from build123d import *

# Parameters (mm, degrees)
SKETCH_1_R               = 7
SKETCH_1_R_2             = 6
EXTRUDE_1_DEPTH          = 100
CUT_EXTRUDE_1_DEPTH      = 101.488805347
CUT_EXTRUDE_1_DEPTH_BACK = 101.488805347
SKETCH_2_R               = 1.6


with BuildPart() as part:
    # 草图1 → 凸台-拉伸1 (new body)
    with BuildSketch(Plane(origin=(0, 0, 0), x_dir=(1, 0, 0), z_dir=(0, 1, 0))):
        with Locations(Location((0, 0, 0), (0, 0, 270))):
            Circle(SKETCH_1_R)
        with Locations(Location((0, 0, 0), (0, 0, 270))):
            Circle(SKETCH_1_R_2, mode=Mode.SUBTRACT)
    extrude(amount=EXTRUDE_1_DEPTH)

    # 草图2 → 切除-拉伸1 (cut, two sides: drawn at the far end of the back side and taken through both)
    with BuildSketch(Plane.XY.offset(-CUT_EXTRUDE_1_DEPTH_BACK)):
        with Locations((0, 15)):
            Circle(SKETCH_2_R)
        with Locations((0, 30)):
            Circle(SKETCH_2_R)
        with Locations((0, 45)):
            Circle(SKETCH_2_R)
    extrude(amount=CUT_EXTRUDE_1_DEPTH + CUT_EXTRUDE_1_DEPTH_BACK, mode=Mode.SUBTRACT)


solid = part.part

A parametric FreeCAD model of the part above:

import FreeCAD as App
import Part
import Sketcher
Q = App.Units.Quantity

doc = App.newDocument("Part")
body = doc.addObject("PartDesign::Body", "Body")

# Sketch on XZ plane
sketch1 = body.newObject("Sketcher::SketchObject", "Sketch")
sketch1.AttachmentSupport = (doc.getObject("XZ_Plane"), [""])
sketch1.MapMode = "FlatFace"
sketch1.addGeometry(Part.Circle(App.Vector(0, 0, 0), App.Vector(0, 0, 1), 7), False)
sketch1.addGeometry(Part.Circle(App.Vector(0, 0, 0), App.Vector(0, 0, 1), 6), False)
sketch1.addConstraint(Sketcher.Constraint("Coincident", 0, 3, -1, 1))
sketch1.addConstraint(Sketcher.Constraint("Coincident", 1, 3, -1, 1))
sketch1.addConstraint(Sketcher.Constraint("Diameter", 0, Q("14 mm")))
sketch1.addConstraint(Sketcher.Constraint("Diameter", 1, Q("12 mm")))
pad1 = body.newObject("PartDesign::Pad", "Pad")
pad1.Profile = sketch1
pad1.Length = 100
pad1.Reversed = True

# Sketch on XY plane
sketch2 = body.newObject("Sketcher::SketchObject", "Sketch001")
sketch2.AttachmentSupport = (doc.getObject("XY_Plane"), [""])
sketch2.MapMode = "FlatFace"
sketch2.addGeometry(Part.Circle(App.Vector(0, 15, 0), App.Vector(0, 0, 1), 1.6), False)
sketch2.addGeometry(Part.Circle(App.Vector(0, 30, 0), App.Vector(0, 0, 1), 1.6), False)
sketch2.addGeometry(Part.Circle(App.Vector(0, 45, 0), App.Vector(0, 0, 1), 1.6), False)
sketch2.addConstraint(Sketcher.Constraint("Equal", 0, 1))
sketch2.addConstraint(Sketcher.Constraint("Equal", 1, 2))
sketch2.addConstraint(Sketcher.Constraint("PointOnObject", 0, 3, -2))
sketch2.addConstraint(Sketcher.Constraint("PointOnObject", 1, 3, -2))
sketch2.addConstraint(Sketcher.Constraint("PointOnObject", 2, 3, -2))
sketch2.addConstraint(Sketcher.Constraint("Diameter", 0, Q("3.2 mm")))
sketch2.addConstraint(Sketcher.Constraint("DistanceY", -1, 1, 0, 3, Q("15 mm")))
sketch2.addConstraint(Sketcher.Constraint("DistanceY", -1, 1, 1, 3, Q("30 mm")))
sketch2.addConstraint(Sketcher.Constraint("DistanceY", -1, 1, 2, 3, Q("45 mm")))
pocket1 = body.newObject("PartDesign::Pocket", "Pocket")
pocket1.Profile = sketch2
pocket1.Type = "ThroughAll"
pocket1.Midplane = True

doc.recompute()
